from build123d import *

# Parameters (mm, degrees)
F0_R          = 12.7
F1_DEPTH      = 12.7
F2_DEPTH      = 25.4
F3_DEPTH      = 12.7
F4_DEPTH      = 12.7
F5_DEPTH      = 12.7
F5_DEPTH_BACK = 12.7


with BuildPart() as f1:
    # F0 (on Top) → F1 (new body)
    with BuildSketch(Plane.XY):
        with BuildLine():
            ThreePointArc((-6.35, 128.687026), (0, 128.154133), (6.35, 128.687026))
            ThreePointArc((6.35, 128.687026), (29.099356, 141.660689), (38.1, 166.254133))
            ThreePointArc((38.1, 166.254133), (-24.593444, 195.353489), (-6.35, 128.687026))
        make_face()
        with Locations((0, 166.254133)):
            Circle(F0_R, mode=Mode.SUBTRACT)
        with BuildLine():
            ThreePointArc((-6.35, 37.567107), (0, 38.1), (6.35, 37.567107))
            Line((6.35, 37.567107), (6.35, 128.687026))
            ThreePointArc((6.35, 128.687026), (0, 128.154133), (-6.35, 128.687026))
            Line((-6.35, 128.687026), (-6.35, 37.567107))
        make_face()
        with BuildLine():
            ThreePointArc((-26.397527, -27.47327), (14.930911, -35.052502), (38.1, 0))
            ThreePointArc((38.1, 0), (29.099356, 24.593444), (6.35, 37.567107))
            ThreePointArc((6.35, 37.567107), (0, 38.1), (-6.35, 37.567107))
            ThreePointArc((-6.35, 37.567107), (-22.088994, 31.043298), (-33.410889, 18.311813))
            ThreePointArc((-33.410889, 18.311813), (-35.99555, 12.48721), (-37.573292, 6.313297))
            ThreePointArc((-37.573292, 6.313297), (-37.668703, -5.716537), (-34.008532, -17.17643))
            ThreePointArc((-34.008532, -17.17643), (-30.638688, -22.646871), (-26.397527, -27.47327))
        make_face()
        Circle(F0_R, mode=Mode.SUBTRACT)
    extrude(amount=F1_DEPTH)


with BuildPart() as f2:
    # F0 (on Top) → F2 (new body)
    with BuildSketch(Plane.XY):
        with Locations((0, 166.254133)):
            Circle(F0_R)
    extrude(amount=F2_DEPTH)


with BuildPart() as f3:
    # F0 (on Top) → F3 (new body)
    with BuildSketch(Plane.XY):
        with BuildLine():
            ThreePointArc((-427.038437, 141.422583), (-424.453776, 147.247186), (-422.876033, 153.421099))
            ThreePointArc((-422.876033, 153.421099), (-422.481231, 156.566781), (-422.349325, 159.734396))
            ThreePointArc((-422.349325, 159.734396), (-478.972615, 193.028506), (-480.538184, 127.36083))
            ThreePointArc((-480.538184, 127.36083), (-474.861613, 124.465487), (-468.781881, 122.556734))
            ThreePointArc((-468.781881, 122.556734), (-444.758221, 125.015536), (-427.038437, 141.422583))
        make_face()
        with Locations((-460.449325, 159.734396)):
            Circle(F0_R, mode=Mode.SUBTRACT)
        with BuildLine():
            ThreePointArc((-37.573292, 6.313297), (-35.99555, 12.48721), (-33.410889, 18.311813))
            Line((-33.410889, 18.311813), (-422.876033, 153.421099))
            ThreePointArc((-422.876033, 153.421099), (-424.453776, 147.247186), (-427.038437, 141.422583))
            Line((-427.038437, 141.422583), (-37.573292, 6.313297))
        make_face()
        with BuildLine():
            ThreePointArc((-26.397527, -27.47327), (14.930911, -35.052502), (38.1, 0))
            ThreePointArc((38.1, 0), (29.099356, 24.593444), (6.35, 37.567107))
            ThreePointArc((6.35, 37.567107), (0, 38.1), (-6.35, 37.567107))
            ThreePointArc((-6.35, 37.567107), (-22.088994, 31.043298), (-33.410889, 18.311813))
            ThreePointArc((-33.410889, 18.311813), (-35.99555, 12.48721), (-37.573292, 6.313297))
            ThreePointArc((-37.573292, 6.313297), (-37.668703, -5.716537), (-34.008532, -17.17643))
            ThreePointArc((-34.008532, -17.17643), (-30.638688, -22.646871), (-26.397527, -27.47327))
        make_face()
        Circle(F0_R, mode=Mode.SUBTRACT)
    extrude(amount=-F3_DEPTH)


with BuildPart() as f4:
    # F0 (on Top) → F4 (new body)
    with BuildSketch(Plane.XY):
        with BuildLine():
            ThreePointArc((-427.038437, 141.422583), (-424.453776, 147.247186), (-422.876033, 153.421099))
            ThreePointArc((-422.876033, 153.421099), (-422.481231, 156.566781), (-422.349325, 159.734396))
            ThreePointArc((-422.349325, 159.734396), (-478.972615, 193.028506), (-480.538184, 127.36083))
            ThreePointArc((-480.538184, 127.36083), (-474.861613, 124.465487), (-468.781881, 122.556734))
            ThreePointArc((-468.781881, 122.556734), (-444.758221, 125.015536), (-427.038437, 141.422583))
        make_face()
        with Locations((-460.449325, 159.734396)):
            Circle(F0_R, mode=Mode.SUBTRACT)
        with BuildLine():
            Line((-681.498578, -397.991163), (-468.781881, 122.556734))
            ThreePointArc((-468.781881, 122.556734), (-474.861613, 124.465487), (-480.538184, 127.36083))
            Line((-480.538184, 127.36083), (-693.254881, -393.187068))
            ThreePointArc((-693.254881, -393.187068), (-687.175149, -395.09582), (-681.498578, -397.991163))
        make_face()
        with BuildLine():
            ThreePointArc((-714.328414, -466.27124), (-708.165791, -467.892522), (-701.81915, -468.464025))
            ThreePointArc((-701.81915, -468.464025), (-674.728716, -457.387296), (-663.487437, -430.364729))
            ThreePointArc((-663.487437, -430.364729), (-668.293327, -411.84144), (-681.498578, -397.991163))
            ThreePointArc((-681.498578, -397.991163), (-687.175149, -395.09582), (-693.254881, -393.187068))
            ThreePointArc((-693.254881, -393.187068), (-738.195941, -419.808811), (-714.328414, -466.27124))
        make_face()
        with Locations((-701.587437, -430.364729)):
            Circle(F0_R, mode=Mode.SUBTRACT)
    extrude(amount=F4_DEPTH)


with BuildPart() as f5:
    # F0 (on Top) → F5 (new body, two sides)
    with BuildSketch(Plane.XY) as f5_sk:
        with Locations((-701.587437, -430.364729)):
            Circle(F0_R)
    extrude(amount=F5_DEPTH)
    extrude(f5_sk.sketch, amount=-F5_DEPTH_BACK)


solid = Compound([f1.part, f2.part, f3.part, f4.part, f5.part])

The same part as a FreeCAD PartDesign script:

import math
import FreeCAD as App
import Part
import Sketcher

V = App.Vector
Q = App.Units.Quantity

doc = App.newDocument("Part")
body = doc.addObject("PartDesign::Body", "Body")

sketch1 = doc.addObject("Sketcher::SketchObject", "Sketch")
body.addObject(sketch1)
sketch1.AttachmentSupport = (doc.XY_Plane, [""])
sketch1.MapMode = "FlatFace"
sketch1.addGeometry([
    Part.ArcOfCircle(Part.Circle(V(0, 166.254133, 0), V(0, 0, 1), 38.1), math.radians(0), math.radians(260.405932)),
    Part.LineSegment(V(-6.35, 128.687026, 0), V(-6.35, 37.567107, 0)),
    Part.ArcOfCircle(Part.Circle(V(0.000001, -0.000001, 0), V(0, 0, 1), 38.100001), math.radians(99.594069), math.radians(151.273769)),
    Part.ArcOfCircle(Part.Circle(V(-0.000034, 0.000012, 0), V(0, 0, 1), 38.099964), math.radians(151.273761), math.radians(170.461915)),
    Part.ArcOfCircle(Part.Circle(V(0.000003, 0, 0), V(0, 0, 1), 38.100003), math.radians(170.461906), math.radians(206.796622)),
    Part.ArcOfCircle(Part.Circle(V(0.000021, 0.000015, 0), V(0, 0, 1), 38.100025), math.radians(-153.20337), math.radians(-133.856022)),
    Part.ArcOfCircle(Part.Circle(V(0, 0, 0), V(0, 0, 1), 38.1), math.radians(-133.856016), math.radians(0)),
    Part.ArcOfCircle(Part.Circle(V(0, 0, 0), V(0, 0, 1), 38.1), math.radians(0), math.radians(80.405931)),
    Part.LineSegment(V(6.35, 37.567107, 0), V(6.35, 128.687026, 0)),
    Part.ArcOfCircle(Part.Circle(V(0, 166.254133, 0), V(0, 0, 1), 38.1), math.radians(-80.405931), math.radians(0)),
    Part.Circle(V(0, 0, 0), V(0, 0, 1), 12.7),
    Part.Circle(V(0, 166.254133, 0), V(0, 0, 1), 12.7),
], False)
sketch1.addConstraint([
    Sketcher.Constraint("Coincident", 0, 2, 1, 1),
    Sketcher.Constraint("Coincident", 1, 2, 2, 1),
    Sketcher.Constraint("Coincident", 2, 2, 3, 1),
    Sketcher.Constraint("Coincident", 3, 2, 4, 1),
    Sketcher.Constraint("Coincident", 4, 2, 5, 1),
    Sketcher.Constraint("Coincident", 5, 2, 6, 1),
    Sketcher.Constraint("Coincident", 6, 2, 7, 1),
    Sketcher.Constraint("Coincident", 7, 2, 8, 1),
    Sketcher.Constraint("Coincident", 8, 2, 9, 1),
    Sketcher.Constraint("Coincident", 9, 2, 0, 1),
    Sketcher.Constraint("Vertical", 1),
    Sketcher.Constraint("Vertical", 8),
    Sketcher.Constraint("Coincident", 2, 3, -1, 1),
    Sketcher.Constraint("Coincident", 4, 3, -1, 1),
    Sketcher.Constraint("Coincident", 6, 3, -1, 1),
    Sketcher.Constraint("Coincident", 7, 3, -1, 1),
    Sketcher.Constraint("Coincident", 10, 3, -1, 1),
    Sketcher.Constraint("Coincident", 9, 3, 0, 3),
    Sketcher.Constraint("Coincident", 11, 3, 0, 3),
    Sketcher.Constraint("PointOnObject", 0, 3, -2),
    Sketcher.Constraint("PointOnObject", 6, 2, -1),
    Sketcher.Constraint("Diameter", 10, Q("1 in")),
    Sketcher.Constraint("Diameter", 11, Q("1 in")),
    Sketcher.Constraint("Radius", 0, Q("1.5 in")),
    Sketcher.Constraint("Radius", 2, Q("1.5 in")),
    Sketcher.Constraint("Radius", 4, Q("1.5000001 in")),
    Sketcher.Constraint("Radius", 6, Q("1.5 in")),
    Sketcher.Constraint("DistanceX", 1, 2, 7, 2, Q("0.5 in")),
    Sketcher.Constraint("DistanceX", 0, 2, -1, 1, Q("0.25 in")),
    Sketcher.Constraint("Radius", 3, Q("38.099964 mm")),
    Sketcher.Constraint("Radius", 5, Q("38.100025 mm")),
    Sketcher.Constraint("DistanceY", 1, 2, 1, 1, Q("91.119919 mm")),
    Sketcher.Constraint("DistanceY", 3, 3, 2, 2, Q("18.311801 mm")),
    Sketcher.Constraint("DistanceX", 4, 2, 3, 3, Q("34.008498 mm")),
    Sketcher.Constraint("DistanceX", 3, 2, -1, 1, Q("37.573292 mm")),
    Sketcher.Constraint("DistanceY", 5, 2, -1, 1, Q("27.47327 mm")),
    Sketcher.Constraint("DistanceY", -1, 1, 9, 2, Q("166.254133 mm")),
])
pad1 = doc.addObject("PartDesign::Pad", "Pad")
body.addObject(pad1)
pad1.Profile = sketch1
pad1.Length = Q("0.5 in")
body2 = doc.addObject("PartDesign::Body", "Body001")

sketch2 = doc.addObject("Sketcher::SketchObject", "Sketch001")
body2.addObject(sketch2)
sketch2.AttachmentSupport = (doc.getObject("XY_Plane001"), [""])
sketch2.MapMode = "FlatFace"
sketch2.addGeometry(Part.Circle(V(0, 166, 0), V(0, 0, 1), 13), False)
sketch2.addConstraint([
    Sketcher.Constraint("PointOnObject", 0, 3, -2),
    Sketcher.Constraint("Diameter", 0, Q("1 in")),
    Sketcher.Constraint("DistanceY", -1, 1, 0, 3, Q("166.254133 mm")),
])
pad2 = doc.addObject("PartDesign::Pad", "Pad001")
body2.addObject(pad2)
pad2.Profile = sketch2
pad2.Length = Q("1 in")
body3 = doc.addObject("PartDesign::Body", "Body002")

sketch3 = doc.addObject("Sketcher::SketchObject", "Sketch002")
body3.addObject(sketch3)
sketch3.AttachmentSupport = (doc.getObject("XY_Plane002"), [""])
sketch3.MapMode = "FlatFace"
sketch3.addGeometry([
    Part.ArcOfCircle(Part.Circle(V(-460.449326, 159.734396, 0), V(0, 0, 1), 38.1), math.radians(-102.63282), math.radians(-28.72623)),
    Part.LineSegment(V(-427.038437, 141.422583, 0), V(-37.573292, 6.313297, 0)),
    Part.ArcOfCircle(Part.Circle(V(0.000003, 0, 0), V(0, 0, 1), 38.100003), math.radians(170.461906), math.radians(206.796622)),
    Part.ArcOfCircle(Part.Circle(V(0.000021, 0.000015, 0), V(0, 0, 1), 38.100025), math.radians(-153.20337), math.radians(-133.856022)),
    Part.ArcOfCircle(Part.Circle(V(0, 0, 0), V(0, 0, 1), 38.1), math.radians(-133.856016), math.radians(0)),
    Part.ArcOfCircle(Part.Circle(V(0, 0, 0), V(0, 0, 1), 38.1), math.radians(0), math.radians(80.405931)),
    Part.ArcOfCircle(Part.Circle(V(0, -0.000027, 0), V(0, 0, 1), 38.100027), math.radians(80.405939), math.radians(99.594061)),
    Part.ArcOfCircle(Part.Circle(V(0.000001, -0.000001, 0), V(0, 0, 1), 38.100001), math.radians(99.594069), math.radians(151.273769)),
    Part.LineSegment(V(-33.410889, 18.311813, 0), V(-422.876033, 153.421099, 0)),
    Part.ArcOfCircle(Part.Circle(V(-460.449508, 159.734412, 0), V(0, 0, 1), 38.100183), math.radians(-9.538073), math.radians(-0.000024)),
    Part.ArcOfCircle(Part.Circle(V(-460.449325, 159.734396, 0), V(0, 0, 1), 38.1), math.radians(0), math.radians(238.179043)),
    Part.ArcOfCircle(Part.Circle(V(-460.449307, 159.734438, 0), V(0, 0, 1), 38.100046), math.radians(-121.820947), math.radians(-102.632834)),
    Part.Circle(V(0, 0, 0), V(0, 0, 1), 12.7),
    Part.Circle(V(-460.449325, 159.734396, 0), V(0, 0, 1), 12.7),
], False)
sketch3.addConstraint([
    Sketcher.Constraint("Coincident", 0, 2, 1, 1),
    Sketcher.Constraint("Coincident", 1, 2, 2, 1),
    Sketcher.Constraint("Coincident", 2, 2, 3, 1),
    Sketcher.Constraint("Coincident", 3, 2, 4, 1),
    Sketcher.Constraint("Coincident", 4, 2, 5, 1),
    Sketcher.Constraint("Coincident", 5, 2, 6, 1),
    Sketcher.Constraint("Coincident", 6, 2, 7, 1),
    Sketcher.Constraint("Coincident", 7, 2, 8, 1),
    Sketcher.Constraint("Coincident", 8, 2, 9, 1),
    Sketcher.Constraint("Coincident", 9, 2, 10, 1),
    Sketcher.Constraint("Coincident", 10, 2, 11, 1),
    Sketcher.Constraint("Coincident", 11, 2, 0, 1),
    Sketcher.Constraint("Coincident", 2, 3, -1, 1),
    Sketcher.Constraint("Coincident", 4, 3, -1, 1),
    Sketcher.Constraint("Coincident", 5, 3, -1, 1),
    Sketcher.Constraint("Coincident", 7, 3, -1, 1),
    Sketcher.Constraint("Coincident", 12, 3, -1, 1),
    Sketcher.Constraint("Coincident", 10, 3, 0, 3),
    Sketcher.Constraint("Coincident", 13, 3, 0, 3),
    Sketcher.Constraint("PointOnObject", 6, 3, -2),
    Sketcher.Constraint("PointOnObject", 4, 2, -1),
    Sketcher.Constraint("Diameter", 12, Q("1 in")),
    Sketcher.Constraint("Diameter", 13, Q("1 in")),
    Sketcher.Constraint("Radius", 0, Q("1.5 in")),
    Sketcher.Constraint("Radius", 2, Q("1.5000001 in")),
    Sketcher.Constraint("Radius", 4, Q("1.5 in")),
    Sketcher.Constraint("Radius", 10, Q("1.5 in")),
    Sketcher.Constraint("DistanceX", 6, 2, 5, 2, Q("0.5 in")),
    Sketcher.Constraint("DistanceX", -1, 1, 5, 2, Q("0.25 in")),
    Sketcher.Constraint("Radius", 3, Q("38.100025 mm")),
    Sketcher.Constraint("Radius", 6, Q("38.100027 mm")),
    Sketcher.Constraint("Radius", 9, Q("38.100183 mm")),
    Sketcher.Constraint("Radius", 11, Q("38.100046 mm")),
    Sketcher.Constraint("DistanceX", 10, 2, 0, 3, Q("0.7908999 in")),
    Sketcher.Constraint("DistanceY", -1, 1, 8, 2, Q("153.421099 mm")),
    Sketcher.Constraint("DistanceX", 9, 3, -1, 1, Q("460.449508 mm")),
    Sketcher.Constraint("DistanceY", -1, 1, 11, 3, Q("159.734438 mm")),
    Sketcher.Constraint("DistanceY", 2, 2, -1, 1, Q("17.17643 mm")),
    Sketcher.Constraint("DistanceY", 3, 2, -1, 1, Q("27.47327 mm")),
    Sketcher.Constraint("DistanceX", 7, 2, -1, 1, Q("33.410889 mm")),
    Sketcher.Constraint("DistanceX", 11, 2, -1, 1, Q("468.781881 mm")),
    Sketcher.Constraint("DistanceY", 2, 3, 9, 3, Q("159.734412 mm")),
    Sketcher.Constraint("DistanceX", 10, 3, 0, 2, Q("33.410888 mm")),
    Sketcher.Constraint("DistanceX", 1, 2, 5, 3, Q("37.573292 mm")),
    Sketcher.Constraint("DistanceY", -1, 1, 9, 2, Q("159.734396 mm")),
])
pad3 = doc.addObject("PartDesign::Pad", "Pad002")
body3.addObject(pad3)
pad3.Profile = sketch3
pad3.Length = Q("0.5 in")
pad3.Reversed = True
body4 = doc.addObject("PartDesign::Body", "Body003")

sketch4 = doc.addObject("Sketcher::SketchObject", "Sketch003")
body4.addObject(sketch4)
sketch4.AttachmentSupport = (doc.getObject("XY_Plane003"), [""])
sketch4.MapMode = "FlatFace"
sketch4.addGeometry([
    Part.ArcOfCircle(Part.Circle(V(-460.449324, 159.734398, 0), V(0, 0, 1), 38.1), math.radians(-28.726235), math.radians(-9.538098)),
    Part.ArcOfCircle(Part.Circle(V(-460.449508, 159.734412, 0), V(0, 0, 1), 38.100183), math.radians(-9.538073), math.radians(-0.000024)),
    Part.ArcOfCircle(Part.Circle(V(-460.449325, 159.734396, 0), V(0, 0, 1), 38.1), math.radians(0), math.radians(238.179043)),
    Part.LineSegment(V(-480.538184, 127.36083, 0), V(-693.254881, -393.187068, 0)),
    Part.ArcOfCircle(Part.Circle(V(-701.587437, -430.364729, 0), V(0, 0, 1), 38.1), math.radians(77.367179), math.radians(250.463405)),
    Part.ArcOfCircle(Part.Circle(V(-701.587428, -430.364685, 0), V(0, 0, 1), 38.100045), math.radians(-109.536584), math.radians(-90.348471)),
    Part.ArcOfCircle(Part.Circle(V(-701.587437, -430.364729, 0), V(0, 0, 1), 38.1), math.radians(-90.348458), math.radians(0)),
    Part.ArcOfCircle(Part.Circle(V(-701.587439, -430.36473, 0), V(0, 0, 1), 38.100002), math.radians(0.000001), math.radians(58.17904)),
    Part.LineSegment(V(-681.498578, -397.991163, 0), V(-468.781881, 122.556734, 0)),
    Part.ArcOfCircle(Part.Circle(V(-460.449326, 159.734396, 0), V(0, 0, 1), 38.1), math.radians(-102.63282), math.radians(-28.72623)),
    Part.Circle(V(-701.587437, -430.364729, 0), V(0, 0, 1), 12.7),
    Part.Circle(V(-460.449325, 159.734396, 0), V(0, 0, 1), 12.7),
], False)
sketch4.addConstraint([
    Sketcher.Constraint("Coincident", 0, 2, 1, 1),
    Sketcher.Constraint("Coincident", 1, 2, 2, 1),
    Sketcher.Constraint("Coincident", 2, 2, 3, 1),
    Sketcher.Constraint("Coincident", 3, 2, 4, 1),
    Sketcher.Constraint("Coincident", 4, 2, 5, 1),
    Sketcher.Constraint("Coincident", 5, 2, 6, 1),
    Sketcher.Constraint("Coincident", 6, 2, 7, 1),
    Sketcher.Constraint("Coincident", 7, 2, 8, 1),
    Sketcher.Constraint("Coincident", 8, 2, 9, 1),
    Sketcher.Constraint("Coincident", 9, 2, 0, 1),
    Sketcher.Constraint("Coincident", 2, 3, 0, 3),
    Sketcher.Constraint("Coincident", 6, 3, 4, 3),
    Sketcher.Constraint("Coincident", 7, 3, 4, 3),
    Sketcher.Constraint("Coincident", 9, 3, 0, 3),
    Sketcher.Constraint("Coincident", 10, 3, 4, 3),
    Sketcher.Constraint("Coincident", 11, 3, 0, 3),
    Sketcher.Constraint("Diameter", 10, Q("1 in")),
    Sketcher.Constraint("Diameter", 11, Q("1 in")),
    Sketcher.Constraint("Radius", 0, Q("1.5 in")),
    Sketcher.Constraint("Radius", 2, Q("1.5 in")),
    Sketcher.Constraint("Radius", 4, Q("1.5 in")),
    Sketcher.Constraint("Radius", 6, Q("1.5 in")),
    Sketcher.Constraint("Radius", 1, Q("38.100183 mm")),
    Sketcher.Constraint("Radius", 5, Q("38.100045 mm")),
    Sketcher.Constraint("DistanceX", 2, 2, 9, 3, Q("0.7908999 in")),
    Sketcher.Constraint("DistanceX", 7, 2, 6, 2, Q("0.7091 in")),
    Sketcher.Constraint("DistanceY", -1, 1, 0, 3, Q("159.734398 mm")),
    Sketcher.Constraint("DistanceY", -1, 1, 0, 2, Q("153.421099 mm")),
    Sketcher.Constraint("Distance", 8, Q("562.333092 mm")),
    Sketcher.Constraint("DistanceX", 1, 3, -1, 1, Q("460.449508 mm")),
    Sketcher.Constraint("DistanceY", 4, 3, -1, 1, Q("430.364729 mm")),
    Sketcher.Constraint("DistanceX", 5, 3, -1, 1, Q("701.587428 mm")),
    Sketcher.Constraint("DistanceX", 3, 2, -1, 1, Q("693.254881 mm")),
    Sketcher.Constraint("DistanceY", 4, 2, -1, 1, Q("466.27124 mm")),
    Sketcher.Constraint("DistanceX", 5, 2, -1, 1, Q("701.81915 mm")),
    Sketcher.Constraint("DistanceY", 6, 2, -1, 1, Q("430.364729 mm")),
    Sketcher.Constraint("DistanceX", 2, 3, 9, 2, Q("33.410888 mm")),
    Sketcher.Constraint("DistanceY", -1, 1, 1, 2, Q("159.734396 mm")),
])
pad4 = doc.addObject("PartDesign::Pad", "Pad003")
body4.addObject(pad4)
pad4.Profile = sketch4
pad4.Length = Q("0.5 in")
body5 = doc.addObject("PartDesign::Body", "Body004")

sketch5 = doc.addObject("Sketcher::SketchObject", "Sketch004")
body5.addObject(sketch5)
sketch5.AttachmentSupport = (doc.getObject("XY_Plane004"), [""])
sketch5.MapMode = "FlatFace"
sketch5.addGeometry(Part.Circle(V(-702, -430, 0), V(0, 0, 1), 13), False)
sketch5.addConstraint([
    Sketcher.Constraint("Diameter", 0, Q("1 in")),
    Sketcher.Constraint("DistanceY", 0, 3, -1, 1, Q("430.364729 mm")),
    Sketcher.Constraint("DistanceX", 0, 3, -1, 1, Q("701.587437 mm")),
])
pad5 = doc.addObject("PartDesign::Pad", "Pad004")
body5.addObject(pad5)
pad5.Profile = sketch5
pad5.Type = "TwoLengths"
pad5.Length = Q("0.5 in")
pad5.Length2 = Q("0.5 in")

doc.recompute()
